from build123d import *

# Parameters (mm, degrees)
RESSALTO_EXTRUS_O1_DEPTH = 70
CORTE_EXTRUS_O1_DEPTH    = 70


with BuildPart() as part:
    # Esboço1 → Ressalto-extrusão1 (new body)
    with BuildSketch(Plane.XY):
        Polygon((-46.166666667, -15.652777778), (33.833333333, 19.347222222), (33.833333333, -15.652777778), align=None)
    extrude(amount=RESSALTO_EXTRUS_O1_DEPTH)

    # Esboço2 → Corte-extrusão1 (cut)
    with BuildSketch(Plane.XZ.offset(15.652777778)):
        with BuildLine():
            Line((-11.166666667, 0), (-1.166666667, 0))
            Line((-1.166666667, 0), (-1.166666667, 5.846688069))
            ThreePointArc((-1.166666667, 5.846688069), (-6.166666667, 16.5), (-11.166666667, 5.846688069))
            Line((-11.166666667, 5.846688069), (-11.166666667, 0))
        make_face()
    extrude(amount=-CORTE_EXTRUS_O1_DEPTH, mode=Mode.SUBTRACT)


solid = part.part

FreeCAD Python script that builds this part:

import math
import FreeCAD as App
import Part
import Sketcher
Q = App.Units.Quantity


def add_polygon(sketch, points):
    """Adds a closed chain of lines whose ends are joined by coincident constraints."""
    first, n = sketch.GeometryCount, len(points)
    for a, b in zip(points, points[1:] + points[:1]):
        sketch.addGeometry(Part.LineSegment(App.Vector(*a, 0), App.Vector(*b, 0)), False)
    for i in range(n):
        sketch.addConstraint(Sketcher.Constraint("Coincident", first + i, 2, first + (i + 1) % n, 1))

doc = App.newDocument("Part")
params = doc.addObject("Spreadsheet::Sheet", "Params")
for row, (alias, value) in enumerate([
    ("sketch1_width", "80 mm"),
    ("sketch1_height", "35 mm"),
    ("pad1_length", "70 mm"),
    ("sketch2_radius", "6.5 mm"),
    ("sketch2_width", "10 mm"),
    ("pocket1_length", "70 mm"),
], start=1):
    params.set(f"A{row}", alias)
    params.set(f"B{row}", "=" + value)
    params.setAlias(f"B{row}", alias)

body = doc.addObject("PartDesign::Body", "Body")

sketch1 = doc.addObject("Sketcher::SketchObject", "Sketch")
body.addObject(sketch1)
sketch1.AttachmentSupport = (doc.XY_Plane, [""])
sketch1.MapMode = "FlatFace"
add_polygon(sketch1, [(33.833333, 19.347222), (-46.166667, -15.652778), (33.833333, -15.652778)])
sketch1.addConstraint(Sketcher.Constraint("Horizontal", 1))
sketch1.addConstraint(Sketcher.Constraint("Vertical", 2))
sketch1.addConstraint(Sketcher.Constraint("DistanceX", 1, 1, 1, 2, Q("80 mm")))
sketch1.addConstraint(Sketcher.Constraint("DistanceY", 2, 1, 2, 2, Q("35 mm")))
sketch1.addConstraint(Sketcher.Constraint("DistanceX", 0, 2, -1, 1, Q("46.166667 mm")))
sketch1.addConstraint(Sketcher.Constraint("DistanceY", 0, 2, -1, 1, Q("15.652778 mm")))
sketch1.setExpression("Constraints[5]", "Params.sketch1_width")
sketch1.setExpression("Constraints[6]", "Params.sketch1_height")
pad1 = doc.addObject("PartDesign::Pad", "Pad")
body.addObject(pad1)
pad1.Profile = sketch1
pad1.setExpression("Length", "Params.pad1_length")

sketch2 = doc.addObject("Sketcher::SketchObject", "Sketch001")
body.addObject(sketch2)
sketch2.AttachmentSupport = (doc.XZ_Plane, [""])
sketch2.MapMode = "FlatFace"
sketch2.AttachmentOffset = App.Placement(App.Vector(0, 0, 15.652778), App.Rotation())
sketch2.addGeometry(Part.LineSegment(App.Vector(-11.166667, 0, 0), App.Vector(-1.166667, 0, 0)), False)
sketch2.addGeometry(Part.LineSegment(App.Vector(-1.166667, 0, 0), App.Vector(-1.166667, 5.846688, 0)), False)
sketch2.addGeometry(Part.ArcOfCircle(Part.Circle(App.Vector(-6.166667, 10, 0), App.Vector(0, 0, 1), 6.5), math.radians(-39.715137), math.radians(219.715137)), False)
sketch2.addGeometry(Part.LineSegment(App.Vector(-11.166667, 5.846688, 0), App.Vector(-11.166667, 0, 0)), False)
sketch2.addConstraint(Sketcher.Constraint("Coincident", 0, 2, 1, 1))
sketch2.addConstraint(Sketcher.Constraint("Coincident", 1, 2, 2, 1))
sketch2.addConstraint(Sketcher.Constraint("Coincident", 2, 2, 3, 1))
sketch2.addConstraint(Sketcher.Constraint("Coincident", 3, 2, 0, 1))
sketch2.addConstraint(Sketcher.Constraint("Horizontal", 0))
sketch2.addConstraint(Sketcher.Constraint("Vertical", 1))
sketch2.addConstraint(Sketcher.Constraint("Vertical", 3))
sketch2.addConstraint(Sketcher.Constraint("PointOnObject", 0, 2, -1))
sketch2.addConstraint(Sketcher.Constraint("Horizontal", 1, 2, 2, 2))
sketch2.addConstraint(Sketcher.Constraint("Radius", 2, Q("6.5 mm")))
sketch2.addConstraint(Sketcher.Constraint("DistanceX", 0, 1, 0, 2, Q("10 mm")))
sketch2.addConstraint(Sketcher.Constraint("DistanceY", -1, 1, 2, 3, Q("10 mm")))
sketch2.addConstraint(Sketcher.Constraint("DistanceX", 2, 3, -1, 1, Q("6.166667 mm")))
sketch2.setExpression("Constraints[9]", "Params.sketch2_radius")
sketch2.setExpression("Constraints[10]", "Params.sketch2_width")
pocket1 = doc.addObject("PartDesign::Pocket", "Pocket")
body.addObject(pocket1)
pocket1.Profile = sketch2
pocket1.setExpression("Length", "Params.pocket1_length")

doc.recompute()
